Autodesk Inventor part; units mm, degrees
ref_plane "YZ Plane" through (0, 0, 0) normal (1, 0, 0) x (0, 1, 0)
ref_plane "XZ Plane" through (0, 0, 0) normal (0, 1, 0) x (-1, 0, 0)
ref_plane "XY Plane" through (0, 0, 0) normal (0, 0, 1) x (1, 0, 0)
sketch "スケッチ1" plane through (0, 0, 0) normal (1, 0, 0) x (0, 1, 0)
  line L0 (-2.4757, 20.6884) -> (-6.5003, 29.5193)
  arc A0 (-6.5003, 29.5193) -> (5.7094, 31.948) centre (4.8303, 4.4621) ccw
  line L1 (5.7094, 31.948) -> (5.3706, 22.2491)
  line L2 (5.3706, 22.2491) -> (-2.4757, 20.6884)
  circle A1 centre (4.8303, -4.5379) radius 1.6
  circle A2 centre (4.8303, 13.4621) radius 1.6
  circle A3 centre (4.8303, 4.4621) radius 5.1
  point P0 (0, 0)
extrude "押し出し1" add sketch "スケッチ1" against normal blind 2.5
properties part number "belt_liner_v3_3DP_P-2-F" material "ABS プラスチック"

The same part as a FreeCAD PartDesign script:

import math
import FreeCAD as App
import Part
import Sketcher
from FreeCAD import Vector

doc = App.newDocument("Part")
body = doc.addObject("PartDesign::Body", "Body")

sketch1 = body.newObject("Sketcher::SketchObject", "Sketch")
sketch1.AttachmentSupport = (doc.getObject("YZ_Plane"), [""])
sketch1.MapMode = "FlatFace"
sketch1.addGeometry(Part.LineSegment(Vector(5.3706, 22.2491, 0), Vector(-2.4757, 20.6884, 0)), False)
sketch1.addGeometry(Part.LineSegment(Vector(-2.4757, 20.6884, 0), Vector(-6.5003, 29.5193, 0)), False)
sketch1.addGeometry(Part.ArcOfCircle(Part.Circle(Vector(4.8303, 4.4621, 0), Vector(0, 0, 1), 27.499923), math.radians(114.331978), math.radians(448.168095)), False)
sketch1.addGeometry(Part.LineSegment(Vector(5.7094, 31.948, 0), Vector(5.3706, 22.2491, 0)), False)
sketch1.addGeometry(Part.Circle(Vector(4.8303, -4.5379, 0), Vector(0, 0, 1), 1.6), False)
sketch1.addGeometry(Part.Circle(Vector(4.8303, 4.4621, 0), Vector(0, 0, 1), 5.1), False)
sketch1.addGeometry(Part.Circle(Vector(4.8303, 13.4621, 0), Vector(0, 0, 1), 1.6), False)
sketch1.addConstraint(Sketcher.Constraint("Coincident", 0, 2, 1, 1))
sketch1.addConstraint(Sketcher.Constraint("Coincident", 1, 2, 2, 1))
sketch1.addConstraint(Sketcher.Constraint("Coincident", 2, 2, 3, 1))
sketch1.addConstraint(Sketcher.Constraint("Coincident", 3, 2, 0, 1))
sketch1.addConstraint(Sketcher.Constraint("Coincident", 5, 3, 2, 3))
sketch1.addConstraint(Sketcher.Constraint("Diameter", 4, 3.2))
sketch1.addConstraint(Sketcher.Constraint("Diameter", 5, 10.2))
sketch1.addConstraint(Sketcher.Constraint("Diameter", 6, 3.2))
sketch1.addConstraint(Sketcher.Constraint("Radius", 2, 27.5))
sketch1.addConstraint(Sketcher.Constraint("Distance", 0, 8.0))
sketch1.addConstraint(Sketcher.Constraint("DistanceY", 4, 3, 2, 3, 9.0))
sketch1.addConstraint(Sketcher.Constraint("DistanceY", 2, 3, 6, 3, 9.0))
sketch1.addConstraint(Sketcher.Constraint("DistanceY", -1, 1, 2, 3, 4.462))
sketch1.addConstraint(Sketcher.Constraint("DistanceY", -1, 1, 2, 2, 31.948))
sketch1.addConstraint(Sketcher.Constraint("DistanceY", -1, 1, 3, 2, 22.249))
sketch1.addConstraint(Sketcher.Constraint("DistanceX", 0, 2, 6, 3, 7.306))
sketch1.addConstraint(Sketcher.Constraint("DistanceX", 0, 2, 2, 3, 7.306))
sketch1.addConstraint(Sketcher.Constraint("DistanceX", 0, 2, 4, 3, 7.306))
sketch1.addConstraint(Sketcher.Constraint("DistanceY", 0, 2, 1, 2, 8.831))
sketch1.addConstraint(Sketcher.Constraint("DistanceX", 1, 2, 3, 2, 11.871))
sketch1.addConstraint(Sketcher.Constraint("DistanceX", -1, 1, 2, 3, 4.8303))
pad1 = body.newObject("PartDesign::Pad", "Pad")
pad1.Profile = sketch1
pad1.Length = 2.5
pad1.Reversed = True

doc.recompute()
